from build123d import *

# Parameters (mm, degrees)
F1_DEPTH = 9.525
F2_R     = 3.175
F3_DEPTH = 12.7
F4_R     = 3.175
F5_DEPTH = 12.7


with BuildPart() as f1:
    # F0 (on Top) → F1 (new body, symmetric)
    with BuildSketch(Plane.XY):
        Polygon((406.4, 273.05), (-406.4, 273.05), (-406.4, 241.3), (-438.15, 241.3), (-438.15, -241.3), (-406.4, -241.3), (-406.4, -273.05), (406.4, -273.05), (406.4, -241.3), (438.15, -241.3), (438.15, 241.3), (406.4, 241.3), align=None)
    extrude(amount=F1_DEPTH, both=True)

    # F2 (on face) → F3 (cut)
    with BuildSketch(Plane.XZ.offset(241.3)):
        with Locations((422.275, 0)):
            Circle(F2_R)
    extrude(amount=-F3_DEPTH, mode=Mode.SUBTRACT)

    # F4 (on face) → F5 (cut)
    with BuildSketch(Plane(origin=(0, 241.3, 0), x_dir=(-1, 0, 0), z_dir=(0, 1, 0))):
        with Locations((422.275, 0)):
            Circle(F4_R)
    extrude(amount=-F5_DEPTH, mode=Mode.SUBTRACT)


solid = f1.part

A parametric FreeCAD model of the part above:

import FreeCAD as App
import Part
import Sketcher

V = App.Vector
Q = App.Units.Quantity

doc = App.newDocument("Part")
params = doc.addObject("Spreadsheet::Sheet", "Params")
for row, (alias, value) in enumerate([
    ("sketch1_width", "32 in"),
    ("sketch1_height", "19 in"),
    ("sketch1_width2", "1.25 in"),
    ("pad1_length", "0.75 in"),
    ("sketch2_diameter", "0.25 in"),
    ("pocket1_length", "0.5 in"),
    ("sketch3_diameter", "0.25 in"),
    ("pocket2_length", "0.5 in"),
], start=1):
    params.set(f"A{row}", alias)
    params.set(f"B{row}", "=" + value)
    params.setAlias(f"B{row}", alias)

body = doc.addObject("PartDesign::Body", "Body")

sketch1 = body.newObject("Sketcher::SketchObject", "Sketch")
sketch1.AttachmentSupport = (doc.getObject("XY_Plane"), [""])
sketch1.MapMode = "FlatFace"
sketch1.addGeometry(Part.LineSegment(V(406, 273, 0), V(-406, 273, 0)), False)
sketch1.addGeometry(Part.LineSegment(V(-406, 273, 0), V(-406, 241, 0)), False)
sketch1.addGeometry(Part.LineSegment(V(-406, 241, 0), V(-438, 241, 0)), False)
sketch1.addGeometry(Part.LineSegment(V(-438, 241, 0), V(-438, -241, 0)), False)
sketch1.addGeometry(Part.LineSegment(V(-438, -241, 0), V(-406, -241, 0)), False)
sketch1.addGeometry(Part.LineSegment(V(-406, -241, 0), V(-406, -273, 0)), False)
sketch1.addGeometry(Part.LineSegment(V(-406, -273, 0), V(406, -273, 0)), False)
sketch1.addGeometry(Part.LineSegment(V(406, -273, 0), V(406, -241, 0)), False)
sketch1.addGeometry(Part.LineSegment(V(406, -241, 0), V(438, -241, 0)), False)
sketch1.addGeometry(Part.LineSegment(V(438, -241, 0), V(438, 241, 0)), False)
sketch1.addGeometry(Part.LineSegment(V(438, 241, 0), V(406, 241, 0)), False)
sketch1.addGeometry(Part.LineSegment(V(406, 241, 0), V(406, 273, 0)), False)
sketch1.addConstraint(Sketcher.Constraint("Coincident", 0, 2, 1, 1))
sketch1.addConstraint(Sketcher.Constraint("Coincident", 1, 2, 2, 1))
sketch1.addConstraint(Sketcher.Constraint("Coincident", 2, 2, 3, 1))
sketch1.addConstraint(Sketcher.Constraint("Coincident", 3, 2, 4, 1))
sketch1.addConstraint(Sketcher.Constraint("Coincident", 4, 2, 5, 1))
sketch1.addConstraint(Sketcher.Constraint("Coincident", 5, 2, 6, 1))
sketch1.addConstraint(Sketcher.Constraint("Coincident", 6, 2, 7, 1))
sketch1.addConstraint(Sketcher.Constraint("Coincident", 7, 2, 8, 1))
sketch1.addConstraint(Sketcher.Constraint("Coincident", 8, 2, 9, 1))
sketch1.addConstraint(Sketcher.Constraint("Coincident", 9, 2, 10, 1))
sketch1.addConstraint(Sketcher.Constraint("Coincident", 10, 2, 11, 1))
sketch1.addConstraint(Sketcher.Constraint("Coincident", 11, 2, 0, 1))
sketch1.addConstraint(Sketcher.Constraint("Horizontal", 0))
sketch1.addConstraint(Sketcher.Constraint("Vertical", 1))
sketch1.addConstraint(Sketcher.Constraint("Horizontal", 2))
sketch1.addConstraint(Sketcher.Constraint("Vertical", 3))
sketch1.addConstraint(Sketcher.Constraint("Horizontal", 4))
sketch1.addConstraint(Sketcher.Constraint("Vertical", 5))
sketch1.addConstraint(Sketcher.Constraint("Horizontal", 6))
sketch1.addConstraint(Sketcher.Constraint("Vertical", 7))
sketch1.addConstraint(Sketcher.Constraint("Horizontal", 8))
sketch1.addConstraint(Sketcher.Constraint("Vertical", 9))
sketch1.addConstraint(Sketcher.Constraint("Horizontal", 10))
sketch1.addConstraint(Sketcher.Constraint("Vertical", 11))
sketch1.addConstraint(Sketcher.Constraint("Symmetric", 0, 2, 6, 2, -1, 1))
sketch1.addConstraint(Sketcher.Constraint("Symmetric", 2, 2, 8, 2, -1, 1))
sketch1.addConstraint(Sketcher.Constraint("Symmetric", 4, 2, 10, 2, -1, 1))
sketch1.addConstraint(Sketcher.Constraint("Symmetric", 4, 2, 7, 2, -2))
sketch1.addConstraint(Sketcher.Constraint("Equal", 10, 1))
sketch1.addConstraint(Sketcher.Constraint("DistanceX", 0, 2, 0, 1, Q("32 in")))
sketch1.addConstraint(Sketcher.Constraint("DistanceY", 3, 2, 3, 1, Q("19 in")))
sketch1.addConstraint(Sketcher.Constraint("DistanceX", 2, 2, 2, 1, Q("1.25 in")))
sketch1.setExpression("Constraints[29]", "Params.sketch1_width")
sketch1.setExpression("Constraints[30]", "Params.sketch1_height")
sketch1.setExpression("Constraints[31]", "Params.sketch1_width2")
pad1 = body.newObject("PartDesign::Pad", "Pad")
pad1.Profile = sketch1
pad1.setExpression("Length", "Params.pad1_length")
pad1.Midplane = True

sketch2 = body.newObject("Sketcher::SketchObject", "Sketch001")
sketch2.AttachmentSupport = (doc.getObject("XZ_Plane"), [""])
sketch2.MapMode = "FlatFace"
sketch2.AttachmentOffset = App.Placement(V(0, 0, 9.5 * 25.4), App.Rotation())
sketch2.addGeometry(Part.Circle(V(422.3, 0, 0), V(0, 0, 1), 3.2), False)
sketch2.addConstraint(Sketcher.Constraint("PointOnObject", 0, 3, -1))
sketch2.addConstraint(Sketcher.Constraint("Diameter", 0, Q("0.25 in")))
sketch2.addConstraint(Sketcher.Constraint("DistanceX", -1, 1, 0, 3, Q("16.625 in")))
sketch2.setExpression("Constraints[1]", "Params.sketch2_diameter")
pocket1 = body.newObject("PartDesign::Pocket", "Pocket")
pocket1.Profile = sketch2
pocket1.setExpression("Length", "Params.pocket1_length")

sketch3 = body.newObject("Sketcher::SketchObject", "Sketch002")
sketch3.AttachmentSupport = (doc.getObject("XZ_Plane"), [""])
sketch3.MapMode = "FlatFace"
sketch3.AttachmentOffset = App.Placement(V(0, 0, -9.5 * 25.4), App.Rotation())
sketch3.addGeometry(Part.Circle(V(-422.3, 0, 0), V(0, 0, 1), 3.2), False)
sketch3.addConstraint(Sketcher.Constraint("PointOnObject", 0, 3, -1))
sketch3.addConstraint(Sketcher.Constraint("Diameter", 0, Q("0.25 in")))
sketch3.addConstraint(Sketcher.Constraint("DistanceX", 0, 3, -1, 1, Q("16.625 in")))
sketch3.setExpression("Constraints[1]", "Params.sketch3_diameter")
pocket2 = body.newObject("PartDesign::Pocket", "Pocket001")
pocket2.Profile = sketch3
pocket2.setExpression("Length", "Params.pocket2_length")
pocket2.Reversed = True

doc.recompute()
